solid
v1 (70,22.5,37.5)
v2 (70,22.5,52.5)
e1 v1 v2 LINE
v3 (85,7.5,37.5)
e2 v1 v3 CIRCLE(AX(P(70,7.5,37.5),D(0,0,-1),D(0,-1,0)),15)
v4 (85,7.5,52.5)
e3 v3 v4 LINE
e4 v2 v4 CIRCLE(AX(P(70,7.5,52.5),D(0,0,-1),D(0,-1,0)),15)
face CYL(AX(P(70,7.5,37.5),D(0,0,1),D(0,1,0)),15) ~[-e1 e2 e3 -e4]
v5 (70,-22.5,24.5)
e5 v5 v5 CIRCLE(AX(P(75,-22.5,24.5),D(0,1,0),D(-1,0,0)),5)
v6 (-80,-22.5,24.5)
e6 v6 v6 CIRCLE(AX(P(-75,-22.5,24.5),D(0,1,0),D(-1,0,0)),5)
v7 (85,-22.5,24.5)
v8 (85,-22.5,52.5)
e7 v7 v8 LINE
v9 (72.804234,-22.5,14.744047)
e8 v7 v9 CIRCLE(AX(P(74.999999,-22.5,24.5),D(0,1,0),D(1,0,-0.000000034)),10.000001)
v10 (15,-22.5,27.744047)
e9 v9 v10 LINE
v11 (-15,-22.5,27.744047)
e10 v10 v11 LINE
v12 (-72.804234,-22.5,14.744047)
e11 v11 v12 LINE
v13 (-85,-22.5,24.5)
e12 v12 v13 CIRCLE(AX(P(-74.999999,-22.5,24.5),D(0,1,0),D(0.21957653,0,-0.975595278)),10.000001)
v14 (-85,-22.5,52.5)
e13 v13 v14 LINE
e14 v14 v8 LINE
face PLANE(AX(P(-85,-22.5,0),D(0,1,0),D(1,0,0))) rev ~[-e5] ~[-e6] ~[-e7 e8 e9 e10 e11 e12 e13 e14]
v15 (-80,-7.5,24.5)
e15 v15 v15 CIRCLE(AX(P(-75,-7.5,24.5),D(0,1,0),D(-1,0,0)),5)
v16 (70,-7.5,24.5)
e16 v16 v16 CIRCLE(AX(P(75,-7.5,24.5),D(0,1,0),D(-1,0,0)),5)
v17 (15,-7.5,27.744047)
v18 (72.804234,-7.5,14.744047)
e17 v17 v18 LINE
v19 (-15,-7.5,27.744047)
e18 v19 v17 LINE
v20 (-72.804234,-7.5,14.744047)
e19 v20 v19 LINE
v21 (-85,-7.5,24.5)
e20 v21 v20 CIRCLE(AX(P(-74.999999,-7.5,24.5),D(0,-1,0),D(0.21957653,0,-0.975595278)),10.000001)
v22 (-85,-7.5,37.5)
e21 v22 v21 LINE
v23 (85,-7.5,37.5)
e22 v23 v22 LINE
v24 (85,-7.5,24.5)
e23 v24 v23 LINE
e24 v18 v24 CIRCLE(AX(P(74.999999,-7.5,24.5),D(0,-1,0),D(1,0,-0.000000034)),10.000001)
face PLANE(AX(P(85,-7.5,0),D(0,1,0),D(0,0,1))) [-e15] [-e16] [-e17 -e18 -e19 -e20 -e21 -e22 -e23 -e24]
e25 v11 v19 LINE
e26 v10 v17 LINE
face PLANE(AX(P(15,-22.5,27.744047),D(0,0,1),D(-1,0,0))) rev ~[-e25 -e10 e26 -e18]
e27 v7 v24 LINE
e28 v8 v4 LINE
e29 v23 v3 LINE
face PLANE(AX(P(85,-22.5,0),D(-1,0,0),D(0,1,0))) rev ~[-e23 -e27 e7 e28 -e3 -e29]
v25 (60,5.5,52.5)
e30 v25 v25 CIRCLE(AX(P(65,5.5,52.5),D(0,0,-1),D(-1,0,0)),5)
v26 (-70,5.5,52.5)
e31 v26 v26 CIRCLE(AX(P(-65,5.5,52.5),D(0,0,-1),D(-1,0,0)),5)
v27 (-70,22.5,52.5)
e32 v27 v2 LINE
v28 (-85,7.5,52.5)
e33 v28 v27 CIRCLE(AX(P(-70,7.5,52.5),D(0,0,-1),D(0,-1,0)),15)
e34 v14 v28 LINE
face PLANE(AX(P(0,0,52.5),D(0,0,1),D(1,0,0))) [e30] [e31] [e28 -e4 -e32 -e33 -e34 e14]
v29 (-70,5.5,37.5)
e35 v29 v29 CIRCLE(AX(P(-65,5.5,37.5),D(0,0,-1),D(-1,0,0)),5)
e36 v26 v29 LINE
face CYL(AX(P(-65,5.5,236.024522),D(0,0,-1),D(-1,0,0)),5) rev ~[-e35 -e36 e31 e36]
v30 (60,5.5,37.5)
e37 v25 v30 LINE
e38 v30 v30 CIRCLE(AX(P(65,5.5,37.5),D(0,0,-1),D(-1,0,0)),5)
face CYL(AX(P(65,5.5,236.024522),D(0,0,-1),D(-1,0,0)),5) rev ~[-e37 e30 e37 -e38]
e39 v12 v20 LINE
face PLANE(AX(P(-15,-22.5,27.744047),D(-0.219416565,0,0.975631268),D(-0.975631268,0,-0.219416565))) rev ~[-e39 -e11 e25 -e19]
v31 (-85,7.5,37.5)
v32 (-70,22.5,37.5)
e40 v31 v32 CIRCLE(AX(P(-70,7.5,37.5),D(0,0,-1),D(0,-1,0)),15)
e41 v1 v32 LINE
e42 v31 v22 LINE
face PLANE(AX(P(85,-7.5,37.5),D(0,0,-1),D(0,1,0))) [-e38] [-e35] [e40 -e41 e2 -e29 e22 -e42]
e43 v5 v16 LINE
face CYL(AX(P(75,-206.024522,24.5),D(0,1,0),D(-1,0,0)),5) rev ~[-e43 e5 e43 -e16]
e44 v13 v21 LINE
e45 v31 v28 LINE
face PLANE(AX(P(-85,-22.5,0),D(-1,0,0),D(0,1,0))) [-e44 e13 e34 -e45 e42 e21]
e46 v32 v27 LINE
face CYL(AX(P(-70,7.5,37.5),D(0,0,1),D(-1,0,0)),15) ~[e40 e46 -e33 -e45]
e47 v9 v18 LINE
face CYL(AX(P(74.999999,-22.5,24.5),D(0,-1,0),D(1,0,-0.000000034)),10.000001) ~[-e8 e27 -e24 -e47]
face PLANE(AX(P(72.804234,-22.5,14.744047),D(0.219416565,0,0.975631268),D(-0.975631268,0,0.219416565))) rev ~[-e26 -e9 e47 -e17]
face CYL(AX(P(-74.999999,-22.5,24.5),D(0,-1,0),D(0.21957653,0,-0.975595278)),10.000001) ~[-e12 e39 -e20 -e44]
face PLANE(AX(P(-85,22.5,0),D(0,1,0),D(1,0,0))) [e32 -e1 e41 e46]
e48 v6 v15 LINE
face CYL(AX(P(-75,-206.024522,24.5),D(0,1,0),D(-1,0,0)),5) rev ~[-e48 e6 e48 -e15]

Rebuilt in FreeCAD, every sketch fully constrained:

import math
import FreeCAD as App
import Part
import Sketcher
Q = App.Units.Quantity


def edges_at(feature, points):
    """Names of the edges that pass closest to the given points."""
    edges = feature.Shape.Edges
    near = lambda p: min(range(len(edges)), key=lambda i: edges[i].distToShape(Part.Vertex(*p))[0])
    return sorted({f"Edge{near(p) + 1}" for p in points})


def add_polygon(sketch, points):
    """Adds a closed chain of lines whose ends are joined by coincident constraints."""
    first, n = sketch.GeometryCount, len(points)
    for a, b in zip(points, points[1:] + points[:1]):
        sketch.addGeometry(Part.LineSegment(App.Vector(*a, 0), App.Vector(*b, 0)), False)
    for i in range(n):
        sketch.addConstraint(Sketcher.Constraint("Coincident", first + i, 2, first + (i + 1) % n, 1))

doc = App.newDocument("Part")
params = doc.addObject("Spreadsheet::Sheet", "Params")
for row, (alias, value) in enumerate([
    ("sketch1_width", "170 mm"),
    ("sketch1_height", "45 mm"),
    ("pad1_length", "52.5 mm"),
    ("sketch2_diameter", "10 mm"),
    ("hole_diameter", "10 mm"),
    ("sketch3_width", "170 mm"),
    ("sketch4_width", "30 mm"),
    ("sketch4_height", "37.5 mm"),
    ("sketch5_diameter", "10 mm"),
    ("hole2_diameter", "10 mm"),
    ("sketch6_radius", "10.000001 mm"),
    ("sketch6_height", "24.5 mm"),
    ("fillet_radius", "15 mm"),
    ("pad2_length", "15 mm"),
    ("sketch8_width", "30 mm"),
    ("pocket4_length", "25 mm"),
], start=1):
    params.set(f"A{row}", alias)
    params.set(f"B{row}", "=" + value)
    params.setAlias(f"B{row}", alias)

body = doc.addObject("PartDesign::Body", "Body")

sketch1 = body.newObject("Sketcher::SketchObject", "Sketch")
sketch1.AttachmentSupport = (doc.getObject("XY_Plane"), [""])
sketch1.MapMode = "FlatFace"
add_polygon(sketch1, [(-85, 22.5), (-85, -22.5), (85, -22.5), (85, 22.5)])
sketch1.addConstraint(Sketcher.Constraint("Vertical", 0))
sketch1.addConstraint(Sketcher.Constraint("Horizontal", 1))
sketch1.addConstraint(Sketcher.Constraint("Vertical", 2))
sketch1.addConstraint(Sketcher.Constraint("Horizontal", 3))
sketch1.addConstraint(Sketcher.Constraint("Symmetric", 0, 2, 2, 2, -1, 1))
sketch1.addConstraint(Sketcher.Constraint("DistanceX", 1, 1, 1, 2, 170.0))
sketch1.addConstraint(Sketcher.Constraint("DistanceY", 0, 2, 0, 1, 45.0))
sketch1.setExpression("Constraints[9]", "Params.sketch1_width")
sketch1.setExpression("Constraints[10]", "Params.sketch1_height")
pad1 = body.newObject("PartDesign::Pad", "Pad")
pad1.Profile = sketch1
pad1.setExpression("Length", "Params.pad1_length")

sketch2 = body.newObject("Sketcher::SketchObject", "Sketch001")
sketch2.AttachmentSupport = (doc.getObject("XY_Plane"), [""])
sketch2.MapMode = "FlatFace"
sketch2.AttachmentOffset = App.Placement(App.Vector(0, 0, 52.5), App.Rotation())
sketch2.addGeometry(Part.Circle(App.Vector(-65, 5.5, 0), App.Vector(0, 0, 1), 5), False)
sketch2.addGeometry(Part.Circle(App.Vector(65, 5.5, 0), App.Vector(0, 0, 1), 5), False)
sketch2.addConstraint(Sketcher.Constraint("Equal", 0, 1))
sketch2.addConstraint(Sketcher.Constraint("Symmetric", 0, 3, 1, 3, -2))
sketch2.addConstraint(Sketcher.Constraint("Diameter", 0, 10.0))
sketch2.addConstraint(Sketcher.Constraint("DistanceX", 0, 3, -1, 1, 65.0))
sketch2.addConstraint(Sketcher.Constraint("DistanceY", -1, 1, 0, 3, 5.5))
sketch2.setExpression("Constraints[2]", "Params.sketch2_diameter")
doc.recompute()
hole = body.newObject("PartDesign::Hole", "Hole")
hole.Profile = sketch2
hole.ThreadType = "None"
hole.setExpression("Diameter", "Params.hole_diameter")
hole.DepthType = "ThroughAll"

sketch3 = body.newObject("Sketcher::SketchObject", "Sketch002")
sketch3.AttachmentSupport = (doc.getObject("XZ_Plane"), [""])
sketch3.MapMode = "FlatFace"
sketch3.AttachmentOffset = App.Placement(App.Vector(0, 0, 22.5), App.Rotation())
sketch3.addGeometry(Part.LineSegment(App.Vector(-85, 0, 0), App.Vector(85, 0, 0)), False)
sketch3.addGeometry(Part.ArcOfCircle(Part.Circle(App.Vector(0, -117.613636, 0), App.Vector(0, 0, 1), 145.113636), math.radians(54.14416), math.radians(125.85584)), False)
sketch3.addConstraint(Sketcher.Constraint("Coincident", 0, 1, 1, 2))
sketch3.addConstraint(Sketcher.Constraint("Coincident", 1, 1, 0, 2))
sketch3.addConstraint(Sketcher.Constraint("Horizontal", 0))
sketch3.addConstraint(Sketcher.Constraint("Symmetric", 0, 1, 1, 1, -1, 1))
sketch3.addConstraint(Sketcher.Constraint("DistanceX", 0, 1, 0, 2, 170.0))
sketch3.addConstraint(Sketcher.Constraint("Radius", 1, 145.113636))
sketch3.setExpression("Constraints[4]", "Params.sketch3_width")
pocket1 = body.newObject("PartDesign::Pocket", "Pocket")
pocket1.Profile = sketch3
pocket1.Type = "ThroughAll"

sketch4 = body.newObject("Sketcher::SketchObject", "Sketch003")
sketch4.AttachmentSupport = (doc.getObject("YZ_Plane"), [""])
sketch4.MapMode = "FlatFace"
sketch4.AttachmentOffset = App.Placement(App.Vector(0, 0, 85), App.Rotation())
add_polygon(sketch4, [(-7.5, 37.5), (-7.5, 0), (22.5, 0), (22.5, 37.5)])
sketch4.addConstraint(Sketcher.Constraint("Vertical", 0))
sketch4.addConstraint(Sketcher.Constraint("Horizontal", 1))
sketch4.addConstraint(Sketcher.Constraint("Vertical", 2))
sketch4.addConstraint(Sketcher.Constraint("Horizontal", 3))
sketch4.addConstraint(Sketcher.Constraint("PointOnObject", 0, 2, -1))
sketch4.addConstraint(Sketcher.Constraint("DistanceX", 1, 1, 1, 2, 30.0))
sketch4.addConstraint(Sketcher.Constraint("DistanceY", 0, 2, 0, 1, 37.5))
sketch4.addConstraint(Sketcher.Constraint("DistanceX", 0, 2, -1, 1, 7.5))
sketch4.setExpression("Constraints[9]", "Params.sketch4_width")
sketch4.setExpression("Constraints[10]", "Params.sketch4_height")
pocket2 = body.newObject("PartDesign::Pocket", "Pocket001")
pocket2.Profile = sketch4
pocket2.Type = "ThroughAll"

sketch5 = body.newObject("Sketcher::SketchObject", "Sketch004")
sketch5.AttachmentSupport = (doc.getObject("XZ_Plane"), [""])
sketch5.MapMode = "FlatFace"
sketch5.AttachmentOffset = App.Placement(App.Vector(0, 0, 22.5), App.Rotation())
sketch5.addGeometry(Part.Circle(App.Vector(-75, 24.5, 0), App.Vector(0, 0, 1), 5), False)
sketch5.addGeometry(Part.Circle(App.Vector(75, 24.5, 0), App.Vector(0, 0, 1), 5), False)
sketch5.addConstraint(Sketcher.Constraint("Equal", 0, 1))
sketch5.addConstraint(Sketcher.Constraint("Symmetric", 0, 3, 1, 3, -2))
sketch5.addConstraint(Sketcher.Constraint("Diameter", 0, 10.0))
sketch5.addConstraint(Sketcher.Constraint("DistanceX", 0, 3, -1, 1, 75.0))
sketch5.addConstraint(Sketcher.Constraint("DistanceY", -1, 1, 0, 3, 24.5))
sketch5.setExpression("Constraints[2]", "Params.sketch5_diameter")
doc.recompute()
hole2 = body.newObject("PartDesign::Hole", "Hole001")
hole2.Profile = sketch5
hole2.ThreadType = "None"
hole2.setExpression("Diameter", "Params.hole2_diameter")
hole2.DepthType = "ThroughAll"

sketch6 = body.newObject("Sketcher::SketchObject", "Sketch005")
sketch6.AttachmentSupport = (doc.getObject("XZ_Plane"), [""])
sketch6.MapMode = "FlatFace"
sketch6.AttachmentOffset = App.Placement(App.Vector(0, 0, 22.5), App.Rotation())
sketch6.addGeometry(Part.ArcOfCircle(Part.Circle(App.Vector(74.999999, 24.5, 0), App.Vector(0, 0, 1), 10.000001), math.radians(-102.684162), math.radians(-0.000002)), False)
sketch6.addGeometry(Part.LineSegment(App.Vector(72.804234, 14.744047, 0), App.Vector(31.863562, 23.958539, 0)), False)
sketch6.addGeometry(Part.LineSegment(App.Vector(31.863562, 23.958539, 0), App.Vector(85, 0, 0)), False)
sketch6.addGeometry(Part.LineSegment(App.Vector(85, 0, 0), App.Vector(85, 24.5, 0)), False)
sketch6.addGeometry(Part.ArcOfCircle(Part.Circle(App.Vector(-74.999999, 24.5, 0), App.Vector(0, 0, 1), 10.000001), math.radians(-179.999998), math.radians(-77.315838)), False)
sketch6.addGeometry(Part.LineSegment(App.Vector(-85, 24.5, 0), App.Vector(-85, 0, 0)), False)
sketch6.addGeometry(Part.LineSegment(App.Vector(-85, 0, 0), App.Vector(-31.863562, 23.958539, 0)), False)
sketch6.addGeometry(Part.LineSegment(App.Vector(-31.863562, 23.958539, 0), App.Vector(-72.804234, 14.744047, 0)), False)
sketch6.addConstraint(Sketcher.Constraint("Tangent", 0, 1, 1, 1))
sketch6.addConstraint(Sketcher.Constraint("Coincident", 1, 2, 2, 1))
sketch6.addConstraint(Sketcher.Constraint("Coincident", 2, 2, 3, 1))
sketch6.addConstraint(Sketcher.Constraint("Tangent", 3, 2, 0, 2))
sketch6.addConstraint(Sketcher.Constraint("Tangent", 4, 1, 5, 1))
sketch6.addConstraint(Sketcher.Constraint("Coincident", 5, 2, 6, 1))
sketch6.addConstraint(Sketcher.Constraint("Coincident", 6, 2, 7, 1))
sketch6.addConstraint(Sketcher.Constraint("Tangent", 7, 2, 4, 2))
sketch6.addConstraint(Sketcher.Constraint("Vertical", 3))
sketch6.addConstraint(Sketcher.Constraint("Vertical", 5))
sketch6.addConstraint(Sketcher.Constraint("Equal", 0, 4))
sketch6.addConstraint(Sketcher.Constraint("Symmetric", 2, 2, 5, 2, -1, 1))
sketch6.addConstraint(Sketcher.Constraint("Symmetric", 1, 2, 6, 2, -2))
sketch6.addConstraint(Sketcher.Constraint("PointOnObject", 2, 2, -1))
sketch6.addConstraint(Sketcher.Constraint("Horizontal", 0, 3, 4, 3))
sketch6.addConstraint(Sketcher.Constraint("Radius", 0, 10.000001))
sketch6.addConstraint(Sketcher.Constraint("DistanceY", 3, 1, 3, 2, 24.5))
sketch6.addConstraint(Sketcher.Constraint("DistanceX", -1, 1, 0, 3, 74.999999))
sketch6.addConstraint(Sketcher.Constraint("Angle", 2, Q("-24.270003 deg")))
sketch6.addConstraint(Sketcher.Constraint("DistanceY", -1, 1, 1, 2, 23.958539))
sketch6.setExpression("Constraints[15]", "Params.sketch6_radius")
sketch6.setExpression("Constraints[16]", "Params.sketch6_height")
pocket3 = body.newObject("PartDesign::Pocket", "Pocket002")
pocket3.Profile = sketch6
pocket3.Type = "ThroughAll"
doc.recompute()

fillet = body.newObject("PartDesign::Fillet", "Fillet")
fillet.Base = (pocket3, edges_at(pocket3, [(85, 22.5, 45), (-85, 22.5, 45)]))
fillet.setExpression("Radius", "Params.fillet_radius")

sketch7 = body.newObject("Sketcher::SketchObject", "Sketch006")
sketch7.AttachmentSupport = (doc.getObject("XZ_Plane"), [""])
sketch7.MapMode = "FlatFace"
sketch7.AttachmentOffset = App.Placement(App.Vector(0, 0, 22.5), App.Rotation())
add_polygon(sketch7, [(-48.969162, 34.744047), (-72.804234, 14.744047), (72.804234, 14.744047), (48.969162, 34.744047)])
sketch7.addConstraint(Sketcher.Constraint("Horizontal", 1))
sketch7.addConstraint(Sketcher.Constraint("Horizontal", 3))
sketch7.addConstraint(Sketcher.Constraint("Equal", 0, 2))
sketch7.addConstraint(Sketcher.Constraint("Angle", 0, Q("-140 deg")))
sketch7.addConstraint(Sketcher.Constraint("DistanceY", 1, 2, 2, 2, 20.0))
sketch7.addConstraint(Sketcher.Constraint("DistanceX", 1, 1, 1, 2, 145.608468))
sketch7.addConstraint(Sketcher.Constraint("DistanceX", -1, 1, 2, 2, 48.969162))
sketch7.addConstraint(Sketcher.Constraint("DistanceY", -1, 1, 0, 2, 14.744047))
pad2 = body.newObject("PartDesign::Pad", "Pad001")
pad2.Profile = sketch7
pad2.setExpression("Length", "Params.pad2_length")
pad2.Reversed = True

sketch8 = body.newObject("Sketcher::SketchObject", "Sketch007")
sketch8.AttachmentSupport = (doc.getObject("XZ_Plane"), [""])
sketch8.MapMode = "FlatFace"
sketch8.AttachmentOffset = App.Placement(App.Vector(0, 0, 22.5), App.Rotation())
add_polygon(sketch8, [(-15, 27.744047), (-72.804234, 14.744047), (72.804234, 14.744047), (15, 27.744047)])
sketch8.addConstraint(Sketcher.Constraint("Horizontal", 1))
sketch8.addConstraint(Sketcher.Constraint("Horizontal", 3))
sketch8.addConstraint(Sketcher.Constraint("Equal", 0, 2))
sketch8.addConstraint(Sketcher.Constraint("DistanceX", 3, 2, 3, 1, 30.0))
sketch8.addConstraint(Sketcher.Constraint("DistanceX", -1, 1, 2, 2, 15.0))
sketch8.addConstraint(Sketcher.Constraint("DistanceY", 1, 2, 2, 2, 13.0))
sketch8.addConstraint(Sketcher.Constraint("DistanceX", 1, 1, 1, 2, 145.608468))
sketch8.addConstraint(Sketcher.Constraint("DistanceY", -1, 1, 0, 2, 14.744047))
sketch8.setExpression("Constraints[7]", "Params.sketch8_width")
pocket4 = body.newObject("PartDesign::Pocket", "Pocket003")
pocket4.Profile = sketch8
pocket4.setExpression("Length", "Params.pocket4_length")

doc.recompute()
